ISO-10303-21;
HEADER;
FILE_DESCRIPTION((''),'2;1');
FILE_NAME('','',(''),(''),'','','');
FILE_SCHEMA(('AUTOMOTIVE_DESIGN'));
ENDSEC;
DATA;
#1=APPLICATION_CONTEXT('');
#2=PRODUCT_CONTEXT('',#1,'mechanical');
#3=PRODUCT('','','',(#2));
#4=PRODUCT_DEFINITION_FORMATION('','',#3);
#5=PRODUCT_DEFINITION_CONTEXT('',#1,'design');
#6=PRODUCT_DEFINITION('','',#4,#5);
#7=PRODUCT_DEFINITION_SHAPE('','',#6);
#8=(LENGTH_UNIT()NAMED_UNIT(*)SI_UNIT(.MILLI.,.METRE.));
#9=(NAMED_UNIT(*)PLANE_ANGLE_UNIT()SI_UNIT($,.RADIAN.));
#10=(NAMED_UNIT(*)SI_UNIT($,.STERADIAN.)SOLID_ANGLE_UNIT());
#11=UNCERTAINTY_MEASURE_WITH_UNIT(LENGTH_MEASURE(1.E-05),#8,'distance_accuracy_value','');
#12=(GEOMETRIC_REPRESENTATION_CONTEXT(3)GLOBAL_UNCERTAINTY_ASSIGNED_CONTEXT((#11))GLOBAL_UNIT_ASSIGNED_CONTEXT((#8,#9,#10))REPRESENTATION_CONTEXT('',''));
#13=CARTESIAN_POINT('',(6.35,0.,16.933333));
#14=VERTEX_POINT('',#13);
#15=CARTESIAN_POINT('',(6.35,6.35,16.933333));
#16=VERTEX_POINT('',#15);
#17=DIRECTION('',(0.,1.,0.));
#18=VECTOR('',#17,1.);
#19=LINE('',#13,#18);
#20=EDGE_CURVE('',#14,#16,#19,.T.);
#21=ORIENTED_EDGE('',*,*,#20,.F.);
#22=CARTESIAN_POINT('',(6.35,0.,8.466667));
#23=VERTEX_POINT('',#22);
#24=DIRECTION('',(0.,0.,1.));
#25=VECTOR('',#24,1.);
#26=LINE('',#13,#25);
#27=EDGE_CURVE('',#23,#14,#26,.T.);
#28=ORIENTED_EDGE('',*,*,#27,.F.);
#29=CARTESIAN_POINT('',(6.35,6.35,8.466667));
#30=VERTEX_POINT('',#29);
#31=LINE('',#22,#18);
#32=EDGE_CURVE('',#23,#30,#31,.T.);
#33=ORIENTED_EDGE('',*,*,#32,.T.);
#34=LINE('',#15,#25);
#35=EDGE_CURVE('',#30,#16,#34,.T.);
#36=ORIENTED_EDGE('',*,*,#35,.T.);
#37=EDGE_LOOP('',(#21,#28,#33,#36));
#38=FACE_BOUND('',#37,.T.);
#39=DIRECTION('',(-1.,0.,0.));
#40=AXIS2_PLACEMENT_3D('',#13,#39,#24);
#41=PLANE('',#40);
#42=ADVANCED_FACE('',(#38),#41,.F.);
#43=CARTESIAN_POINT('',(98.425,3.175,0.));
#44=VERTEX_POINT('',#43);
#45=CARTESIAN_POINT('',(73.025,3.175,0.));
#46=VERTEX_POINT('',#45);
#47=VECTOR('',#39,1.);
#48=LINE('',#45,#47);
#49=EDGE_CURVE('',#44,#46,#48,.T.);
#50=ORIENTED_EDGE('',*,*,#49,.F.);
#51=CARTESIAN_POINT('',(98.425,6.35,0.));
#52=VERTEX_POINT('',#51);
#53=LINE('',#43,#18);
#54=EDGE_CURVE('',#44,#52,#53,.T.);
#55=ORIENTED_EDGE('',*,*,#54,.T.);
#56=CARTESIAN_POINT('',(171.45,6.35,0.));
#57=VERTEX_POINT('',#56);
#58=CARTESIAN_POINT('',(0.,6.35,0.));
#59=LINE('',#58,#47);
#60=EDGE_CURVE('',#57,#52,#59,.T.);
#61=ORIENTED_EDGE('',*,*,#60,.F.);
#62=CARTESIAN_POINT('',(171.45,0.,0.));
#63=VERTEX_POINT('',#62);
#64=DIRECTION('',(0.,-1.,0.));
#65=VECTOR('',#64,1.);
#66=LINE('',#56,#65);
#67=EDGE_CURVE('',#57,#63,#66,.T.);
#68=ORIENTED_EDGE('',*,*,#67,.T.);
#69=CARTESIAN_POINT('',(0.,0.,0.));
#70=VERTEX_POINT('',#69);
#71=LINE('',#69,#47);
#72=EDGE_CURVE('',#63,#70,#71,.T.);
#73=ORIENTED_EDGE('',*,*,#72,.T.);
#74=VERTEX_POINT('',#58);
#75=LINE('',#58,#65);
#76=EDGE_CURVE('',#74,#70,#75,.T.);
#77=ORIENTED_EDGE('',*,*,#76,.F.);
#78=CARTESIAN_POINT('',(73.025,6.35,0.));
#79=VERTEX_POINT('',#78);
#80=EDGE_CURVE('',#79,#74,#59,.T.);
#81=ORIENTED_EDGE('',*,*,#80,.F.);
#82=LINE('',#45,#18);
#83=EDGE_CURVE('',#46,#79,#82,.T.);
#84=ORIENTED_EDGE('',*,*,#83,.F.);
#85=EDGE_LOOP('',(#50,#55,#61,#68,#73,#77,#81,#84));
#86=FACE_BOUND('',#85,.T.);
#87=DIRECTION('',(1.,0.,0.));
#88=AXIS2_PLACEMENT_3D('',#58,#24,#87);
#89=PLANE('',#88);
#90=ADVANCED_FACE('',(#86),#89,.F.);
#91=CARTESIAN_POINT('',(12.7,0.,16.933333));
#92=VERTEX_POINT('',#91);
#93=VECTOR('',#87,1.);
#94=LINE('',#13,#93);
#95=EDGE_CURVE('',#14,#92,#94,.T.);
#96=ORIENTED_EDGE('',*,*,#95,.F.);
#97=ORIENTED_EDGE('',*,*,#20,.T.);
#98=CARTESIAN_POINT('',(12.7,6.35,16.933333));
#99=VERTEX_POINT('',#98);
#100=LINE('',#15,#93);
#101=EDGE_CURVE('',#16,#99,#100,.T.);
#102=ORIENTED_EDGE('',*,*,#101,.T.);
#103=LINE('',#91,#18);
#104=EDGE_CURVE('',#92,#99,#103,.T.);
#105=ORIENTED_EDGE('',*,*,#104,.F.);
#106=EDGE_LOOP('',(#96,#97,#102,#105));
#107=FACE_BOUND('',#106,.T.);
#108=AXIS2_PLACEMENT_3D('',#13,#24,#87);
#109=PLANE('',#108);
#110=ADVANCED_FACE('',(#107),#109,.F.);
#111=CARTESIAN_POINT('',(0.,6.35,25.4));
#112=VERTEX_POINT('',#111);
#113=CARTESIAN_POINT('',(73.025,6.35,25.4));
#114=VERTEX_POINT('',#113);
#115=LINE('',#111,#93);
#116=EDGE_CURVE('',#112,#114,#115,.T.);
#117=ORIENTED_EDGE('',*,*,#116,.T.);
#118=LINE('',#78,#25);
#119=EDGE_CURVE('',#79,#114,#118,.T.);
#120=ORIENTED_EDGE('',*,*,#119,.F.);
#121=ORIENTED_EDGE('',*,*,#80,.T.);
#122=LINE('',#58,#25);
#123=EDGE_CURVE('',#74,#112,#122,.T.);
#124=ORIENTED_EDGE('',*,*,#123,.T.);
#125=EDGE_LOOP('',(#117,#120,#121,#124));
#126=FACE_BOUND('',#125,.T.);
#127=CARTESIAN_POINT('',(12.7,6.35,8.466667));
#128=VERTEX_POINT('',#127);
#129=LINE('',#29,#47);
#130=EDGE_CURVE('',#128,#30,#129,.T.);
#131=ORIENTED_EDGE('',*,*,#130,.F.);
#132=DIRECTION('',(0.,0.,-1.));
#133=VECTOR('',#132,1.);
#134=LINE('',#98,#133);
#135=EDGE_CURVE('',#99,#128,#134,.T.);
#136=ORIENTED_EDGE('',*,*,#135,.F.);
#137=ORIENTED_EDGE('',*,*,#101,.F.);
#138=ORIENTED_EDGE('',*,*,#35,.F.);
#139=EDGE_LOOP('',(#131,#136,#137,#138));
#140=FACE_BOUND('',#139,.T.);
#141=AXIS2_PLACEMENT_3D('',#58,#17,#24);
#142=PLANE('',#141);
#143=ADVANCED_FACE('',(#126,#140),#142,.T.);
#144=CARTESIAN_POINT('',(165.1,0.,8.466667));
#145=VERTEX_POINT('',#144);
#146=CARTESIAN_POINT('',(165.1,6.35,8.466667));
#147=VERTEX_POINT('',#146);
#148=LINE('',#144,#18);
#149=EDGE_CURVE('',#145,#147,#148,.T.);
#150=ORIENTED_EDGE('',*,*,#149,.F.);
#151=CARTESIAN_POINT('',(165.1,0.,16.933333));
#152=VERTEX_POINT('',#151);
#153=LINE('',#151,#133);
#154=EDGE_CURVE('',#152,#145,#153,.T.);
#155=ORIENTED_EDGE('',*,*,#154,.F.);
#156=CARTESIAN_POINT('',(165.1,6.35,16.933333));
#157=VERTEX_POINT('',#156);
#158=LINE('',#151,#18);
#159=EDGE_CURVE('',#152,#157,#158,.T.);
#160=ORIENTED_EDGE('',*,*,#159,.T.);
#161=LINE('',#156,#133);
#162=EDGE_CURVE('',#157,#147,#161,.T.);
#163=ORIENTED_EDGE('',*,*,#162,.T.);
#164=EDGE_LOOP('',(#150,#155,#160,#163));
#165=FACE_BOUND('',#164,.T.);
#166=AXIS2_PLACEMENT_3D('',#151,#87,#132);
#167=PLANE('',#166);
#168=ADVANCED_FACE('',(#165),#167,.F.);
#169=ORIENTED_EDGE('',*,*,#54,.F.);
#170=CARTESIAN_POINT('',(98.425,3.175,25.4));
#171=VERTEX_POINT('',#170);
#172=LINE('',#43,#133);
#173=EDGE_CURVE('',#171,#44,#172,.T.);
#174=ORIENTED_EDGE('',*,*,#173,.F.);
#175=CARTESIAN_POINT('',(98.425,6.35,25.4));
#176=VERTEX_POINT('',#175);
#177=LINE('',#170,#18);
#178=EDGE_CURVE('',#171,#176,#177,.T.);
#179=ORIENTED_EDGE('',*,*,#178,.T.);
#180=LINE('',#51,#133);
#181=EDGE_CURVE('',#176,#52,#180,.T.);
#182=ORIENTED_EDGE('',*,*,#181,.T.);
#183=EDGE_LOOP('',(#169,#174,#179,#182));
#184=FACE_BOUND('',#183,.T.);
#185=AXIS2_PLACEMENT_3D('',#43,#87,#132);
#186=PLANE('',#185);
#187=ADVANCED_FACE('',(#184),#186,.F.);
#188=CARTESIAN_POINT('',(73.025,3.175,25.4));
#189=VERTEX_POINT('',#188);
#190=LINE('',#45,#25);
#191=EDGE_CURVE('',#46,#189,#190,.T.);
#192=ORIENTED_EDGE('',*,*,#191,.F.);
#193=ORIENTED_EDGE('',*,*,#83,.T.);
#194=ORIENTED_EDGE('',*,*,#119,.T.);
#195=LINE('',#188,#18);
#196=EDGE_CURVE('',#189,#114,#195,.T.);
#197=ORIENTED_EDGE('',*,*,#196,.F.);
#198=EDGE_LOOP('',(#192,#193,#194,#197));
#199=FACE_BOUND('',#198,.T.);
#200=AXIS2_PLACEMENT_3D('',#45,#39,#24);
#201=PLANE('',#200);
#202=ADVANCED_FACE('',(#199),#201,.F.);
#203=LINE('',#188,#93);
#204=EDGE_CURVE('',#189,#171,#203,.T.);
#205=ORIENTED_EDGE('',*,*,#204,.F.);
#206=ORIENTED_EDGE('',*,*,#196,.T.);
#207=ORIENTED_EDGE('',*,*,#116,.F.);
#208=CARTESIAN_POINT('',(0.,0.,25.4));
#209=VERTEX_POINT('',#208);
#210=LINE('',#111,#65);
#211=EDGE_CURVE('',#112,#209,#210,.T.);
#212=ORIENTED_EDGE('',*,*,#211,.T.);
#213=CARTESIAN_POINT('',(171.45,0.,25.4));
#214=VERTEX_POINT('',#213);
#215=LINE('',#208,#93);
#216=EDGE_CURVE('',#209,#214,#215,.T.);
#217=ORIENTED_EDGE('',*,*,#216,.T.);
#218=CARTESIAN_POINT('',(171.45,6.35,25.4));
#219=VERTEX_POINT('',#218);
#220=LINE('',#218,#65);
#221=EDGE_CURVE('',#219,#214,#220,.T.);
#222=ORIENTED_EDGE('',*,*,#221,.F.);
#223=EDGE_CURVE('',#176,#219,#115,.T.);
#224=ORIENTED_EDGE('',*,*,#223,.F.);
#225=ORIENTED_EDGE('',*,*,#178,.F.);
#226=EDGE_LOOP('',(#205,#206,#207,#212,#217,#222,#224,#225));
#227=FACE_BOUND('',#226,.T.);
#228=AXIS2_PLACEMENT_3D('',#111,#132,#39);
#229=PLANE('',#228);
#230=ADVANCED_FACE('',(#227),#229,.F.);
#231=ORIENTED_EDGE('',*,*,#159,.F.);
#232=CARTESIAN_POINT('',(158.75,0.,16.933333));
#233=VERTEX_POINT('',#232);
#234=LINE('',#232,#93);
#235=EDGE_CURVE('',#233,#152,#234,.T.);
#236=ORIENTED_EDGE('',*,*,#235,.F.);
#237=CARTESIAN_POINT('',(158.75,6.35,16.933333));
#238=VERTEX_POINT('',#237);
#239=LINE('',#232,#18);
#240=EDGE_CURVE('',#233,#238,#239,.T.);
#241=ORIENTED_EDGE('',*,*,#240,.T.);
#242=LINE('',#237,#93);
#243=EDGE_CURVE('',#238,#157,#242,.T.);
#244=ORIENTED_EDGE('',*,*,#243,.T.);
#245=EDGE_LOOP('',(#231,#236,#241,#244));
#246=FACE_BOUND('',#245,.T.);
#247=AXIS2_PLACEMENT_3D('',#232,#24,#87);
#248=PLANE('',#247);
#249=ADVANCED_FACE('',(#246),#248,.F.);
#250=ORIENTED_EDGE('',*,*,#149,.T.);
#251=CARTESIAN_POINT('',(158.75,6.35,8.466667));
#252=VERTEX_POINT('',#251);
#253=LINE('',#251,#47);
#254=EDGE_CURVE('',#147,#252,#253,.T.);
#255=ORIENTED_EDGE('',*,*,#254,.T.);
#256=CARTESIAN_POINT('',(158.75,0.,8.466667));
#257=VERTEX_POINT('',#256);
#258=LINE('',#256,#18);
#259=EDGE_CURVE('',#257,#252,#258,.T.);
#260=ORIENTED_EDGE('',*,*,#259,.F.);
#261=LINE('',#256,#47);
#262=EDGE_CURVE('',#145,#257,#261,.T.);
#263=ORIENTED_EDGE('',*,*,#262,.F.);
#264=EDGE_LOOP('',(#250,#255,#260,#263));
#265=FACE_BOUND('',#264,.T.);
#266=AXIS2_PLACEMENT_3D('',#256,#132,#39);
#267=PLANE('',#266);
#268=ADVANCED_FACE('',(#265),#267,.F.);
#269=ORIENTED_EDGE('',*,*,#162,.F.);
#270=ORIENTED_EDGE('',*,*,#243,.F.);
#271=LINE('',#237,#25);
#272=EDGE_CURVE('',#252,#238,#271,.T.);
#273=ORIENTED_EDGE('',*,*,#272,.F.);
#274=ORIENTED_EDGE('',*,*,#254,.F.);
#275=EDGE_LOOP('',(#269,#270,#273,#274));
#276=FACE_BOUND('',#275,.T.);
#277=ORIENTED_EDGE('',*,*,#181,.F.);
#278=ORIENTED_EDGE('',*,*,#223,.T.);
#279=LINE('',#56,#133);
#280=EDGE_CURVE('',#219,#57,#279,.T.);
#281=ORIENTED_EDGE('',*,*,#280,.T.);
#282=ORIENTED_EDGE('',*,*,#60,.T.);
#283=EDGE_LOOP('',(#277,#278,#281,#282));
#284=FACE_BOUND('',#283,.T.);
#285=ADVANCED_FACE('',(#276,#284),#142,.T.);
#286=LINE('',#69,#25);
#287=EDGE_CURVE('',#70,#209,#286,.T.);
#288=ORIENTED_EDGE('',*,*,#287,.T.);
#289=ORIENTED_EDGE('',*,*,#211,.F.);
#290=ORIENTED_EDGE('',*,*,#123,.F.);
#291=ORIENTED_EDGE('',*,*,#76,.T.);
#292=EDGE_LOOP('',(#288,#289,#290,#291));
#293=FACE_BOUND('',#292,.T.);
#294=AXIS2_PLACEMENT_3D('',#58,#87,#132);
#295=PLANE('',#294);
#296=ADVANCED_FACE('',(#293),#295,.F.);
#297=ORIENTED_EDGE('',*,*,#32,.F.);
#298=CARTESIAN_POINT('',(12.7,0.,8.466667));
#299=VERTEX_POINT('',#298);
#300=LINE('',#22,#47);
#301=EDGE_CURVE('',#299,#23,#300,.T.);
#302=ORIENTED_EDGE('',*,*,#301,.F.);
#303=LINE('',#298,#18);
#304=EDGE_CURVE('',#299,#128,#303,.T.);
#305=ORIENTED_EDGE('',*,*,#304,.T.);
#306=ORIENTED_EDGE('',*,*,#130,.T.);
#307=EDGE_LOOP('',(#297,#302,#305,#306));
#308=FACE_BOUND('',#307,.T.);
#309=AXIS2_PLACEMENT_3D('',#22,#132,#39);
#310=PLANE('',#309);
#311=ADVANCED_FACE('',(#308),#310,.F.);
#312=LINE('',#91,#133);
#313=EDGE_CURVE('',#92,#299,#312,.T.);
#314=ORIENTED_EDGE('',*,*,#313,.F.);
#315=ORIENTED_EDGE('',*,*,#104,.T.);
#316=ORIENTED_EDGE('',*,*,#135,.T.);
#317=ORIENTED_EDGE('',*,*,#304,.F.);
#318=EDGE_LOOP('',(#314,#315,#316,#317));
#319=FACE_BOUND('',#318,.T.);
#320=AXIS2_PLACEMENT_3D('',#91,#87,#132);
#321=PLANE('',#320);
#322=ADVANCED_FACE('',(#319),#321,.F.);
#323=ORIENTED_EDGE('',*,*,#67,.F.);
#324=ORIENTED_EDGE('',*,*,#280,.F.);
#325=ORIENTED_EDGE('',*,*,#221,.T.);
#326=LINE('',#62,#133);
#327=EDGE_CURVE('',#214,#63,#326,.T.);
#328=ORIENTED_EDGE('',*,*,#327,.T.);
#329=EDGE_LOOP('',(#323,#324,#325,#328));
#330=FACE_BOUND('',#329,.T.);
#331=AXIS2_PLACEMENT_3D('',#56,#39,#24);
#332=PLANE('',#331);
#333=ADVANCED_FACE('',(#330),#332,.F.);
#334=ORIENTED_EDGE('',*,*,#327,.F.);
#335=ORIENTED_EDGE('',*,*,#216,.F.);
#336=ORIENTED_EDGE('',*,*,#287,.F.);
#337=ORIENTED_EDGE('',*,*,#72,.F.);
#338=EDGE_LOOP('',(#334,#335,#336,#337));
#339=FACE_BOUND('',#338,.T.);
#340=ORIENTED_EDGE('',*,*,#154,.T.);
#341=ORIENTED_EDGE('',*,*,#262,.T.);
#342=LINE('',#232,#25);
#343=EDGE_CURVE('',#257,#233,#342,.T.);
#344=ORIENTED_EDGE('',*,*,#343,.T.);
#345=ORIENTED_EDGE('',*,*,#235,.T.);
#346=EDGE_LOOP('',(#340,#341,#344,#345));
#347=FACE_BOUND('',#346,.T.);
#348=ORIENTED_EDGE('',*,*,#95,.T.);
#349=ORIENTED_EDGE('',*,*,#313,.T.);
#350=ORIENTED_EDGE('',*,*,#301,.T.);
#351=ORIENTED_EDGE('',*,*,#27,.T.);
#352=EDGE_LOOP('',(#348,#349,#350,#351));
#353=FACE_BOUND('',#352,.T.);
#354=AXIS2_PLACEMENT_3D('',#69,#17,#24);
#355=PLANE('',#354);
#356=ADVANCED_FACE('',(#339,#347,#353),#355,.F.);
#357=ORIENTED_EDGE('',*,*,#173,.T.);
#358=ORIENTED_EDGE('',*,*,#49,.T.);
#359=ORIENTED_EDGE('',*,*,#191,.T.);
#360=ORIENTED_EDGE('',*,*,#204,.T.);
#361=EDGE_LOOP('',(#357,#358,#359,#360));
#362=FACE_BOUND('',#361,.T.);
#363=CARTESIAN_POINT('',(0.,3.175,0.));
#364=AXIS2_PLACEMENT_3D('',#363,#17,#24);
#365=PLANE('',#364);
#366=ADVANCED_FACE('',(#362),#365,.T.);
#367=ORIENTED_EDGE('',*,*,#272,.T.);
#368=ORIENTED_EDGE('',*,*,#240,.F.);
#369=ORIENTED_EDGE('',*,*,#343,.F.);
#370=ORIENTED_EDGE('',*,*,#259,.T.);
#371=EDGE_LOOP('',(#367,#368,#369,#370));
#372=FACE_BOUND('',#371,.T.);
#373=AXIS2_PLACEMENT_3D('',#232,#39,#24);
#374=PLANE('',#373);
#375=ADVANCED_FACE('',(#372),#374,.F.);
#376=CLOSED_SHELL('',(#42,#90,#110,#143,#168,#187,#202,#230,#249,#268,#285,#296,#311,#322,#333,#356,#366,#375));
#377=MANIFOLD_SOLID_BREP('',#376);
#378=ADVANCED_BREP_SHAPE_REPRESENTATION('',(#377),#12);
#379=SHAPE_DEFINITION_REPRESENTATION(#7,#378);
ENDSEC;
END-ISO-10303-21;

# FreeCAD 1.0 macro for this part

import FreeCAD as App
import Part
import Sketcher
from FreeCAD import Vector
Q = App.Units.Quantity

doc = App.newDocument("Part")
params = doc.addObject("Spreadsheet::Sheet", "Params")
for row, (alias, value) in enumerate([
    ("sketch1_height", "1 in"),
    ("sketch1_width", "6.75 in"),
    ("pad1_length", "0.25 in"),
    ("sketch2_width", "0.25 in"),
    ("sketch3_width", "1 in"),
    ("pocket2_length", "0.125 in"),
], start=1):
    params.set(f"A{row}", alias)
    params.set(f"B{row}", "=" + value)
    params.setAlias(f"B{row}", alias)

body = doc.addObject("PartDesign::Body", "Body")

sketch1 = body.newObject("Sketcher::SketchObject", "Sketch")
sketch1.AttachmentSupport = (doc.getObject("XZ_Plane"), [""])
sketch1.MapMode = "FlatFace"
sketch1.addGeometry([
    Part.LineSegment(Vector(0, 0, 0), Vector(0, 25, 0)),
    Part.LineSegment(Vector(0, 25, 0), Vector(171, 25, 0)),
    Part.LineSegment(Vector(171, 25, 0), Vector(171, 0, 0)),
    Part.LineSegment(Vector(171, 0, 0), Vector(0, 0, 0)),
], False)
sketch1.addConstraint([
    Sketcher.Constraint("Coincident", 0, 2, 1, 1),
    Sketcher.Constraint("Coincident", 1, 2, 2, 1),
    Sketcher.Constraint("Coincident", 2, 2, 3, 1),
    Sketcher.Constraint("Coincident", 3, 2, 0, 1),
    Sketcher.Constraint("Vertical", 0),
    Sketcher.Constraint("Horizontal", 1),
    Sketcher.Constraint("Vertical", 2),
    Sketcher.Constraint("Horizontal", 3),
    Sketcher.Constraint("Coincident", 3, 2, -1, 1),
    Sketcher.Constraint("DistanceY", 0, 1, 0, 2, Q("1 in")),
    Sketcher.Constraint("DistanceX", 1, 1, 1, 2, Q("6.75 in")),
])
sketch1.setExpression("Constraints[9]", "Params.sketch1_height")
sketch1.setExpression("Constraints[10]", "Params.sketch1_width")
pad1 = body.newObject("PartDesign::Pad", "Pad")
pad1.Profile = sketch1
pad1.setExpression("Length", "Params.pad1_length")
pad1.Reversed = True

sketch2 = body.newObject("Sketcher::SketchObject", "Sketch001")
sketch2.AttachmentSupport = (doc.getObject("XZ_Plane"), [""])
sketch2.MapMode = "FlatFace"
sketch2.AttachmentOffset = App.Placement(Vector(0, 0, -0.25 * 25.4), App.Rotation())
sketch2.addGeometry([
    Part.LineSegment(Vector(159, 8, 0), Vector(159, 17, 0)),
    Part.LineSegment(Vector(159, 17, 0), Vector(165, 17, 0)),
    Part.LineSegment(Vector(165, 17, 0), Vector(165, 8, 0)),
    Part.LineSegment(Vector(165, 8, 0), Vector(159, 8, 0)),
    Part.LineSegment(Vector(6, 8, 0), Vector(6, 17, 0)),
    Part.LineSegment(Vector(6, 17, 0), Vector(13, 17, 0)),
    Part.LineSegment(Vector(13, 17, 0), Vector(13, 8, 0)),
    Part.LineSegment(Vector(13, 8, 0), Vector(6, 8, 0)),
], False)
sketch2.addConstraint([
    Sketcher.Constraint("Coincident", 0, 2, 1, 1),
    Sketcher.Constraint("Coincident", 1, 2, 2, 1),
    Sketcher.Constraint("Coincident", 2, 2, 3, 1),
    Sketcher.Constraint("Coincident", 3, 2, 0, 1),
    Sketcher.Constraint("Coincident", 4, 2, 5, 1),
    Sketcher.Constraint("Coincident", 5, 2, 6, 1),
    Sketcher.Constraint("Coincident", 6, 2, 7, 1),
    Sketcher.Constraint("Coincident", 7, 2, 4, 1),
    Sketcher.Constraint("Vertical", 0),
    Sketcher.Constraint("Horizontal", 1),
    Sketcher.Constraint("Vertical", 2),
    Sketcher.Constraint("Horizontal", 3),
    Sketcher.Constraint("Vertical", 4),
    Sketcher.Constraint("Horizontal", 5),
    Sketcher.Constraint("Vertical", 6),
    Sketcher.Constraint("Horizontal", 7),
    Sketcher.Constraint("Horizontal", 1, 2, 4, 2),
    Sketcher.Constraint("Horizontal", 3, 2, 6, 2),
    Sketcher.Constraint("Equal", 3, 5),
    Sketcher.Constraint("DistanceX", 4, 2, 0, 2, Q("6 in")),
    Sketcher.Constraint("DistanceX", 1, 1, 1, 2, Q("0.25 in")),
    Sketcher.Constraint("DistanceX", -1, 1, 1, 2, Q("6.5 in")),
    Sketcher.Constraint("DistanceY", 0, 1, 0, 2, 8.466667),
    Sketcher.Constraint("DistanceY", -1, 1, 0, 2, 16.933333),
])
sketch2.setExpression("Constraints[20]", "Params.sketch2_width")
pocket1 = body.newObject("PartDesign::Pocket", "Pocket")
pocket1.Profile = sketch2
pocket1.Type = "ThroughAll"
pocket1.Reversed = True

sketch3 = body.newObject("Sketcher::SketchObject", "Sketch002")
sketch3.AttachmentSupport = (doc.getObject("XZ_Plane"), [""])
sketch3.MapMode = "FlatFace"
sketch3.AttachmentOffset = App.Placement(Vector(0, 0, -0.25 * 25.4), App.Rotation())
sketch3.addGeometry([
    Part.LineSegment(Vector(73, 0, 0), Vector(73, 25, 0)),
    Part.LineSegment(Vector(73, 25, 0), Vector(98, 25, 0)),
    Part.LineSegment(Vector(98, 25, 0), Vector(98, 0, 0)),
    Part.LineSegment(Vector(98, 0, 0), Vector(73, 0, 0)),
], False)
sketch3.addConstraint([
    Sketcher.Constraint("Coincident", 0, 2, 1, 1),
    Sketcher.Constraint("Coincident", 1, 2, 2, 1),
    Sketcher.Constraint("Coincident", 2, 2, 3, 1),
    Sketcher.Constraint("Coincident", 3, 2, 0, 1),
    Sketcher.Constraint("Vertical", 0),
    Sketcher.Constraint("Horizontal", 1),
    Sketcher.Constraint("Vertical", 2),
    Sketcher.Constraint("Horizontal", 3),
    Sketcher.Constraint("PointOnObject", 2, 2, -1),
    Sketcher.Constraint("Equal", 3, 0),
    Sketcher.Constraint("DistanceX", 1, 1, 1, 2, Q("1 in")),
    Sketcher.Constraint("DistanceX", -1, 1, 0, 2, Q("2.875 in")),
])
sketch3.setExpression("Constraints[10]", "Params.sketch3_width")
pocket2 = body.newObject("PartDesign::Pocket", "Pocket001")
pocket2.Profile = sketch3
pocket2.setExpression("Length", "Params.pocket2_length")
pocket2.Reversed = True

doc.recompute()
